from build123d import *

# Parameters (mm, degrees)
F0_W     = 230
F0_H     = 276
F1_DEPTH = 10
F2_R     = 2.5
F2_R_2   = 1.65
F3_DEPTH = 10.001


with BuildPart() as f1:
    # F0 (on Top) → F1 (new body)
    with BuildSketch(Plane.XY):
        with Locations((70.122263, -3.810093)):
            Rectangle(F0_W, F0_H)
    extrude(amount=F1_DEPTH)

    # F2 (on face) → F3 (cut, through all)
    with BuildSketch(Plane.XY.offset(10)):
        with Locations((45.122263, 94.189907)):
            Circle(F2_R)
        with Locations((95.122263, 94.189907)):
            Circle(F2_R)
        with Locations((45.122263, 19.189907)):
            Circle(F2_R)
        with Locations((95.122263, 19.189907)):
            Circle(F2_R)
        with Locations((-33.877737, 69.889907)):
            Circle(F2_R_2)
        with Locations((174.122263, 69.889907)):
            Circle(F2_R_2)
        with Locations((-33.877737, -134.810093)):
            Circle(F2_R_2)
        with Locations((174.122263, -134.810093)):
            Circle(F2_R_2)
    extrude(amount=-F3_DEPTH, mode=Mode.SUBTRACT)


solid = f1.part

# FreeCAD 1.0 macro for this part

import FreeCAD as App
import Part
import Sketcher

V = App.Vector

doc = App.newDocument("Part")
body = doc.addObject("PartDesign::Body", "Body")

# Sketch on XY plane
sketch1 = doc.addObject("Sketcher::SketchObject", "Sketch")
body.addObject(sketch1)
sketch1.AttachmentSupport = (doc.XY_Plane, [""])
sketch1.MapMode = "FlatFace"
sketch1.addGeometry(Part.LineSegment(V(-45, 134, 0), V(-45, -142, 0)), False)
sketch1.addGeometry(Part.LineSegment(V(-45, -142, 0), V(185, -142, 0)), False)
sketch1.addGeometry(Part.LineSegment(V(185, -142, 0), V(185, 134, 0)), False)
sketch1.addGeometry(Part.LineSegment(V(185, 134, 0), V(-45, 134, 0)), False)
sketch1.addConstraint(Sketcher.Constraint("Coincident", 0, 2, 1, 1))
sketch1.addConstraint(Sketcher.Constraint("Coincident", 1, 2, 2, 1))
sketch1.addConstraint(Sketcher.Constraint("Coincident", 2, 2, 3, 1))
sketch1.addConstraint(Sketcher.Constraint("Coincident", 3, 2, 0, 1))
sketch1.addConstraint(Sketcher.Constraint("Vertical", 0))
sketch1.addConstraint(Sketcher.Constraint("Horizontal", 1))
sketch1.addConstraint(Sketcher.Constraint("Vertical", 2))
sketch1.addConstraint(Sketcher.Constraint("Horizontal", 3))
sketch1.addConstraint(Sketcher.Constraint("DistanceX", 1, 1, 1, 2, 230.0))
sketch1.addConstraint(Sketcher.Constraint("DistanceY", 0, 2, 0, 1, 276.0))
sketch1.addConstraint(Sketcher.Constraint("DistanceX", 0, 2, -1, 1, 44.877737))
sketch1.addConstraint(Sketcher.Constraint("DistanceY", 0, 2, -1, 1, 141.810093))
pad1 = doc.addObject("PartDesign::Pad", "Pad")
body.addObject(pad1)
pad1.Profile = sketch1
pad1.Length = 10

# Sketch on XY plane
sketch2 = doc.addObject("Sketcher::SketchObject", "Sketch001")
body.addObject(sketch2)
sketch2.AttachmentSupport = (doc.XY_Plane, [""])
sketch2.MapMode = "FlatFace"
sketch2.AttachmentOffset = App.Placement(V(0, 0, 10), App.Rotation())
sketch2.addGeometry(Part.Circle(V(45.1, 94.2, 0), V(0, 0, 1), 2.5), False)
sketch2.addGeometry(Part.Circle(V(95.1, 94.2, 0), V(0, 0, 1), 2.5), False)
sketch2.addGeometry(Part.Circle(V(45.1, 19.2, 0), V(0, 0, 1), 2.5), False)
sketch2.addGeometry(Part.Circle(V(95.1, 19.2, 0), V(0, 0, 1), 2.5), False)
sketch2.addGeometry(Part.Circle(V(-33.9, 69.9, 0), V(0, 0, 1), 1.6), False)
sketch2.addGeometry(Part.Circle(V(174.1, 69.9, 0), V(0, 0, 1), 1.6), False)
sketch2.addGeometry(Part.Circle(V(-33.9, -134.8, 0), V(0, 0, 1), 1.6), False)
sketch2.addGeometry(Part.Circle(V(174.1, -134.8, 0), V(0, 0, 1), 1.6), False)
sketch2.addConstraint(Sketcher.Constraint("Equal", 0, 1))
sketch2.addConstraint(Sketcher.Constraint("Equal", 1, 2))
sketch2.addConstraint(Sketcher.Constraint("Equal", 2, 3))
sketch2.addConstraint(Sketcher.Constraint("Equal", 4, 5))
sketch2.addConstraint(Sketcher.Constraint("Equal", 5, 6))
sketch2.addConstraint(Sketcher.Constraint("Equal", 6, 7))
sketch2.addConstraint(Sketcher.Constraint("Horizontal", 0, 3, 1, 3))
sketch2.addConstraint(Sketcher.Constraint("Horizontal", 2, 3, 3, 3))
sketch2.addConstraint(Sketcher.Constraint("Horizontal", 4, 3, 5, 3))
sketch2.addConstraint(Sketcher.Constraint("Horizontal", 6, 3, 7, 3))
sketch2.addConstraint(Sketcher.Constraint("Vertical", 0, 3, 2, 3))
sketch2.addConstraint(Sketcher.Constraint("Vertical", 1, 3, 3, 3))
sketch2.addConstraint(Sketcher.Constraint("Vertical", 4, 3, 6, 3))
sketch2.addConstraint(Sketcher.Constraint("Vertical", 5, 3, 7, 3))
sketch2.addConstraint(Sketcher.Constraint("Diameter", 0, 5.0))
sketch2.addConstraint(Sketcher.Constraint("Diameter", 4, 3.3))
sketch2.addConstraint(Sketcher.Constraint("DistanceX", 0, 3, 1, 3, 50.0))
sketch2.addConstraint(Sketcher.Constraint("DistanceY", 2, 3, 0, 3, 75.0))
sketch2.addConstraint(Sketcher.Constraint("DistanceX", 4, 3, 0, 3, 79.0))
sketch2.addConstraint(Sketcher.Constraint("DistanceX", 1, 3, 5, 3, 79.0))
sketch2.addConstraint(Sketcher.Constraint("DistanceY", 6, 3, 2, 3, 154.0))
sketch2.addConstraint(Sketcher.Constraint("DistanceY", 4, 3, 0, 3, 24.3))
sketch2.addConstraint(Sketcher.Constraint("DistanceX", -1, 1, 0, 3, 45.122263))
sketch2.addConstraint(Sketcher.Constraint("DistanceY", -1, 1, 0, 3, 94.189907))
pocket1 = doc.addObject("PartDesign::Pocket", "Pocket")
body.addObject(pocket1)
pocket1.Profile = sketch2
pocket1.Type = "ThroughAll"

doc.recompute()
